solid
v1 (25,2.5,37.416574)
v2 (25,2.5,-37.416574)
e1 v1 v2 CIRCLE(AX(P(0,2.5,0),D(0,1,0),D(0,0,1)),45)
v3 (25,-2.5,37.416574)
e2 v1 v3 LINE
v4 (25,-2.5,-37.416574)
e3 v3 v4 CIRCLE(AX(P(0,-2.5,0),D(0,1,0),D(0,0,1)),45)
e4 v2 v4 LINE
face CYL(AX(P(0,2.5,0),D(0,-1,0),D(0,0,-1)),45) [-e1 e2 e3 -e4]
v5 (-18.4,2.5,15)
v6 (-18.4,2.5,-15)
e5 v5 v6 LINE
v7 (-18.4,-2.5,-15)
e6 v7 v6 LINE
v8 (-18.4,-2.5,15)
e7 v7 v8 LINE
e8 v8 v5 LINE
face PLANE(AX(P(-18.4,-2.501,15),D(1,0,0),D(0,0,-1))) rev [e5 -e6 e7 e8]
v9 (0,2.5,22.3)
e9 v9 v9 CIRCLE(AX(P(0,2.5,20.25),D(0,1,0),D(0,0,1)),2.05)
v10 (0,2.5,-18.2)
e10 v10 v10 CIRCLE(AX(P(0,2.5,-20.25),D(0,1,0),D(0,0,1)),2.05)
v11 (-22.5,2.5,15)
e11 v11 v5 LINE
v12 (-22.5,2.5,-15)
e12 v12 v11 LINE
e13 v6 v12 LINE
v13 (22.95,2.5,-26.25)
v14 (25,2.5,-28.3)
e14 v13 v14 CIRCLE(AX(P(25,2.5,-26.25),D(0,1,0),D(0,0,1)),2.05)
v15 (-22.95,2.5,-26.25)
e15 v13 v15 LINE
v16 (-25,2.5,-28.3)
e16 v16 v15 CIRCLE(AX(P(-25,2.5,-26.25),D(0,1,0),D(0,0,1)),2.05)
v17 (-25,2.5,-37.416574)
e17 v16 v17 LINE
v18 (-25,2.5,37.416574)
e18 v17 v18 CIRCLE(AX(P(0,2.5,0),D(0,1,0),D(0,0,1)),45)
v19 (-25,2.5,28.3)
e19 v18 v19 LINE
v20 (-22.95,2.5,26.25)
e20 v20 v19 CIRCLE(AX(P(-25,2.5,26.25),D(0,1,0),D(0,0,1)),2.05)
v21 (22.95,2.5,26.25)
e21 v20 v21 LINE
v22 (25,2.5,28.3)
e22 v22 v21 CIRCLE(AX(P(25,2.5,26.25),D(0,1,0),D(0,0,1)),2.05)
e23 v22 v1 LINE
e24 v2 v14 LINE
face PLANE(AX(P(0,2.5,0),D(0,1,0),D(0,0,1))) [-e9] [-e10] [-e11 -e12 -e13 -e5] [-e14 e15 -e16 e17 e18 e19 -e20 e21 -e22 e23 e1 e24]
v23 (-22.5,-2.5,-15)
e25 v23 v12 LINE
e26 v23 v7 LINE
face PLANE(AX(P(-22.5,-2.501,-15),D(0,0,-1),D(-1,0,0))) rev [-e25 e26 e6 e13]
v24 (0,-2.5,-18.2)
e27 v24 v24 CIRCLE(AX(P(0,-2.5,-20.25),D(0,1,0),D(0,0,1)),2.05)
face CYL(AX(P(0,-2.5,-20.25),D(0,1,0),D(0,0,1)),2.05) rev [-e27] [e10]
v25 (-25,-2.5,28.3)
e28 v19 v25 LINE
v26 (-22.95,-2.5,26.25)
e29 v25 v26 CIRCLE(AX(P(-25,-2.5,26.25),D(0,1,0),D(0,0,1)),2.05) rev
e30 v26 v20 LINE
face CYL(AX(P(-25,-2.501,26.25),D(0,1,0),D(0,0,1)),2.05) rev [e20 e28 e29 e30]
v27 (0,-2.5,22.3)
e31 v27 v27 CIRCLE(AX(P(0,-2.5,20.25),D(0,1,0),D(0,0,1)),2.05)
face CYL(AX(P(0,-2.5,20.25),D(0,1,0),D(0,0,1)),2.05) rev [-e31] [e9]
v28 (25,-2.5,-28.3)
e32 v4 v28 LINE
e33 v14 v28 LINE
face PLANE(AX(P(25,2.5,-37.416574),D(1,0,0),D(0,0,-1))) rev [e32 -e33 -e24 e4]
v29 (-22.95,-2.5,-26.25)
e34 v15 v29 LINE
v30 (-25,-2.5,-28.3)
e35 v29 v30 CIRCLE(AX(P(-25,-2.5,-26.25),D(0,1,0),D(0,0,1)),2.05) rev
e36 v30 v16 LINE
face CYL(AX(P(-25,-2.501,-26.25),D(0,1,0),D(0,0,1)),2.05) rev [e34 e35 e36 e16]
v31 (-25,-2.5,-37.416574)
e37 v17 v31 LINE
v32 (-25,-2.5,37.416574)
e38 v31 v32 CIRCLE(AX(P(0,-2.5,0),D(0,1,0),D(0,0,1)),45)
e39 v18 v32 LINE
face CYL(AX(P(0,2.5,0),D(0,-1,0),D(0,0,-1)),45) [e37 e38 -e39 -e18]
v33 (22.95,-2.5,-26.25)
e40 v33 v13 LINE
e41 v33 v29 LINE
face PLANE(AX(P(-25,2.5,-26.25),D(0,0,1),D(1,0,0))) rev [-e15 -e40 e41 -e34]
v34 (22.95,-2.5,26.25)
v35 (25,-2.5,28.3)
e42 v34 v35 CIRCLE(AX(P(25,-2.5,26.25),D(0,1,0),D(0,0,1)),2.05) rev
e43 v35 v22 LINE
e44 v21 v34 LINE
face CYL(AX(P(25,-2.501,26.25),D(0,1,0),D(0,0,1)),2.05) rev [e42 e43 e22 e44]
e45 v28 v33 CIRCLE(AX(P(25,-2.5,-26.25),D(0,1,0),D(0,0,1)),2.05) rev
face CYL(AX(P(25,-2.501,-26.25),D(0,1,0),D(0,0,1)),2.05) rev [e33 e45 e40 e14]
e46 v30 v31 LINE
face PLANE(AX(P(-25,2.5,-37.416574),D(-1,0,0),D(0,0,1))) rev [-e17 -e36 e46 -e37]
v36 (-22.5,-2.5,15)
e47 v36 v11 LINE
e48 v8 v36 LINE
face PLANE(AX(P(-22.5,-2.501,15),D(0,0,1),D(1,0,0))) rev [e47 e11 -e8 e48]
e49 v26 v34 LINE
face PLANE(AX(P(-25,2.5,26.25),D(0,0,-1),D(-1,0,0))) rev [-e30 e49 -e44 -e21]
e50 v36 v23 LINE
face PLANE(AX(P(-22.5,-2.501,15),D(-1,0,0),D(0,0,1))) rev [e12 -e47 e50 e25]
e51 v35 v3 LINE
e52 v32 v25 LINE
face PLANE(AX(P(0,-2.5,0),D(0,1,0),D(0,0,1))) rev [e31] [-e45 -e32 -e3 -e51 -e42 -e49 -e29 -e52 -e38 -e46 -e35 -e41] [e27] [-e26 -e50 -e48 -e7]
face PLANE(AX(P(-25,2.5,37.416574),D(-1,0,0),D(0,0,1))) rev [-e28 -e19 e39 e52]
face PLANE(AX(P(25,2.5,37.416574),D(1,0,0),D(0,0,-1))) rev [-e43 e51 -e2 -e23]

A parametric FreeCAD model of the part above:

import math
import FreeCAD as App
import Part
import Sketcher
from FreeCAD import Vector
Q = App.Units.Quantity

doc = App.newDocument("Part")
body = doc.addObject("PartDesign::Body", "Body")

# Sketch on XZ plane
sketch1 = body.newObject("Sketcher::SketchObject", "Sketch")
sketch1.AttachmentSupport = (doc.getObject("XZ_Plane"), [""])
sketch1.MapMode = "FlatFace"
sketch1.addGeometry([
    Part.LineSegment(Vector(-25, -26, 0), Vector(-25, -37, 0)),  # 0
    Part.ArcOfCircle(Part.Circle(Vector(0, 0, 0), Vector(0, 0, 1), 45), math.radians(124), math.radians(236)),  # 1
    Part.LineSegment(Vector(-25, 37, 0), Vector(-25, 26, 0)),  # 2
    Part.LineSegment(Vector(-25, 26, 0), Vector(25, 26, 0)),  # 3
    Part.LineSegment(Vector(25, 26, 0), Vector(25, 37, 0)),  # 4
    Part.ArcOfCircle(Part.Circle(Vector(0, 0, 0), Vector(0, 0, 1), 45), math.radians(-56), math.radians(56)),  # 5
    Part.LineSegment(Vector(25, -37, 0), Vector(25, -26, 0)),  # 6
    Part.LineSegment(Vector(25, -26, 0), Vector(-25, -26, 0)),  # 7
], False)
sketch1.addConstraint([
    Sketcher.Constraint("Coincident", 0, 2, 1, 2),
    Sketcher.Constraint("Coincident", 1, 1, 2, 1),
    Sketcher.Constraint("Coincident", 2, 2, 3, 1),
    Sketcher.Constraint("Coincident", 3, 2, 4, 1),
    Sketcher.Constraint("Coincident", 4, 2, 5, 2),
    Sketcher.Constraint("Coincident", 5, 1, 6, 1),
    Sketcher.Constraint("Coincident", 6, 2, 7, 1),
    Sketcher.Constraint("Coincident", 7, 2, 0, 1),
    Sketcher.Constraint("Vertical", 0),
    Sketcher.Constraint("Vertical", 2),
    Sketcher.Constraint("Horizontal", 3),
    Sketcher.Constraint("Vertical", 4),
    Sketcher.Constraint("Vertical", 6),
    Sketcher.Constraint("Horizontal", 7),
    Sketcher.Constraint("Coincident", 1, 3, -1, 1),
    Sketcher.Constraint("Coincident", 5, 3, -1, 1),
    Sketcher.Constraint("Equal", 1, 5),
    Sketcher.Constraint("Symmetric", 2, 2, 6, 2, -1, 1),
    Sketcher.Constraint("Horizontal", 1, 1, 4, 2),
    Sketcher.Constraint("Horizontal", 0, 2, 5, 1),
    Sketcher.Constraint("Radius", 1, Q("45 mm")),
    Sketcher.Constraint("DistanceX", 3, 1, 3, 2, Q("50 mm")),
    Sketcher.Constraint("DistanceY", 6, 2, 3, 2, Q("52.5 mm")),
])
pad1 = body.newObject("PartDesign::Pad", "Pad")
pad1.Profile = sketch1
pad1.Length = 5
pad1.Midplane = True

# Sketch on XZ plane
sketch2 = body.newObject("Sketcher::SketchObject", "Sketch001")
sketch2.AttachmentSupport = (doc.getObject("XZ_Plane"), [""])
sketch2.MapMode = "FlatFace"
sketch2.AttachmentOffset = App.Placement(Vector(0, 0, -2.5), App.Rotation())
sketch2.addGeometry([
    Part.Circle(Vector(0, -20.2, 0), Vector(0, 0, 1), 2),
    Part.Circle(Vector(0, 20.2, 0), Vector(0, 0, 1), 2),
], False)
sketch2.addConstraint([
    Sketcher.Constraint("Equal", 0, 1),
    Sketcher.Constraint("Symmetric", 0, 3, 1, 3, -1, 1),
    Sketcher.Constraint("PointOnObject", 0, 3, -2),
    Sketcher.Constraint("Diameter", 0, Q("4.1 mm")),
    Sketcher.Constraint("DistanceY", 0, 3, 1, 3, Q("40.5 mm")),
])
pocket1 = body.newObject("PartDesign::Pocket", "Pocket")
pocket1.Profile = sketch2
pocket1.Type = "ThroughAll"
pocket1.Reversed = True

# Sketch on XZ plane
sketch3 = body.newObject("Sketcher::SketchObject", "Sketch002")
sketch3.AttachmentSupport = (doc.getObject("XZ_Plane"), [""])
sketch3.MapMode = "FlatFace"
sketch3.AttachmentOffset = App.Placement(Vector(0, 0, -2.5), App.Rotation())
sketch3.addGeometry([
    Part.LineSegment(Vector(-22.5, -15, 0), Vector(-22.5, 15, 0)),
    Part.LineSegment(Vector(-22.5, 15, 0), Vector(-18.4, 15, 0)),
    Part.LineSegment(Vector(-18.4, 15, 0), Vector(-18.4, -15, 0)),
    Part.LineSegment(Vector(-18.4, -15, 0), Vector(-22.5, -15, 0)),
], False)
sketch3.addConstraint([
    Sketcher.Constraint("Coincident", 0, 2, 1, 1),
    Sketcher.Constraint("Coincident", 1, 2, 2, 1),
    Sketcher.Constraint("Coincident", 2, 2, 3, 1),
    Sketcher.Constraint("Coincident", 3, 2, 0, 1),
    Sketcher.Constraint("Vertical", 0),
    Sketcher.Constraint("Horizontal", 1),
    Sketcher.Constraint("Vertical", 2),
    Sketcher.Constraint("Horizontal", 3),
    Sketcher.Constraint("DistanceY", 0, 1, 0, 2, Q("30 mm")),
    Sketcher.Constraint("DistanceX", 1, 1, 1, 2, Q("4.1 mm")),
    Sketcher.Constraint("DistanceY", -1, 1, 0, 2, Q("15 mm")),
    Sketcher.Constraint("DistanceX", 0, 2, -1, 1, Q("22.5 mm")),
])
pocket2 = body.newObject("PartDesign::Pocket", "Pocket001")
pocket2.Profile = sketch3
pocket2.Type = "UpToFirst"
pocket2.Reversed = True

# Sketch on XZ plane
sketch4 = body.newObject("Sketcher::SketchObject", "Sketch003")
sketch4.AttachmentSupport = (doc.getObject("XZ_Plane"), [""])
sketch4.MapMode = "FlatFace"
sketch4.AttachmentOffset = App.Placement(Vector(0, 0, -2.5), App.Rotation())
sketch4.addGeometry(Part.Circle(Vector(-25, -26.2, 0), Vector(0, 0, 1), 2), False)
sketch4.addConstraint([
    Sketcher.Constraint("Diameter", 0, Q("4.1 mm")),
    Sketcher.Constraint("DistanceX", 0, 3, -1, 1, Q("25 mm")),
    Sketcher.Constraint("DistanceY", 0, 3, -1, 1, Q("26.25 mm")),
])
pocket3 = body.newObject("PartDesign::Pocket", "Pocket002")
pocket3.Profile = sketch4
pocket3.Type = "UpToFirst"
pocket3.Reversed = True

# Sketch on XZ plane
sketch5 = body.newObject("Sketcher::SketchObject", "Sketch004")
sketch5.AttachmentSupport = (doc.getObject("XZ_Plane"), [""])
sketch5.MapMode = "FlatFace"
sketch5.AttachmentOffset = App.Placement(Vector(0, 0, -2.5), App.Rotation())
sketch5.addGeometry(Part.Circle(Vector(-25, 26.2, 0), Vector(0, 0, 1), 2), False)
sketch5.addConstraint([
    Sketcher.Constraint("Diameter", 0, Q("4.1 mm")),
    Sketcher.Constraint("DistanceX", 0, 3, -1, 1, Q("25 mm")),
    Sketcher.Constraint("DistanceY", -1, 1, 0, 3, Q("26.25 mm")),
])
pocket4 = body.newObject("PartDesign::Pocket", "Pocket003")
pocket4.Profile = sketch5
pocket4.Type = "UpToFirst"
pocket4.Reversed = True

# Sketch on XZ plane
sketch6 = body.newObject("Sketcher::SketchObject", "Sketch005")
sketch6.AttachmentSupport = (doc.getObject("XZ_Plane"), [""])
sketch6.MapMode = "FlatFace"
sketch6.AttachmentOffset = App.Placement(Vector(0, 0, -2.5), App.Rotation())
sketch6.addGeometry(Part.Circle(Vector(25, 26.2, 0), Vector(0, 0, 1), 2), False)
sketch6.addConstraint([
    Sketcher.Constraint("Diameter", 0, Q("4.1 mm")),
    Sketcher.Constraint("DistanceX", -1, 1, 0, 3, Q("25 mm")),
    Sketcher.Constraint("DistanceY", -1, 1, 0, 3, Q("26.25 mm")),
])
pocket5 = body.newObject("PartDesign::Pocket", "Pocket004")
pocket5.Profile = sketch6
pocket5.Type = "UpToFirst"
pocket5.Reversed = True

# Sketch on XZ plane
sketch7 = body.newObject("Sketcher::SketchObject", "Sketch006")
sketch7.AttachmentSupport = (doc.getObject("XZ_Plane"), [""])
sketch7.MapMode = "FlatFace"
sketch7.AttachmentOffset = App.Placement(Vector(0, 0, -2.5), App.Rotation())
sketch7.addGeometry(Part.Circle(Vector(25, -26.2, 0), Vector(0, 0, 1), 2), False)
sketch7.addConstraint([
    Sketcher.Constraint("Diameter", 0, Q("4.1 mm")),
    Sketcher.Constraint("DistanceX", -1, 1, 0, 3, Q("25 mm")),
    Sketcher.Constraint("DistanceY", 0, 3, -1, 1, Q("26.25 mm")),
])
pocket6 = body.newObject("PartDesign::Pocket", "Pocket005")
pocket6.Profile = sketch7
pocket6.Type = "UpToFirst"
pocket6.Reversed = True

doc.recompute()
